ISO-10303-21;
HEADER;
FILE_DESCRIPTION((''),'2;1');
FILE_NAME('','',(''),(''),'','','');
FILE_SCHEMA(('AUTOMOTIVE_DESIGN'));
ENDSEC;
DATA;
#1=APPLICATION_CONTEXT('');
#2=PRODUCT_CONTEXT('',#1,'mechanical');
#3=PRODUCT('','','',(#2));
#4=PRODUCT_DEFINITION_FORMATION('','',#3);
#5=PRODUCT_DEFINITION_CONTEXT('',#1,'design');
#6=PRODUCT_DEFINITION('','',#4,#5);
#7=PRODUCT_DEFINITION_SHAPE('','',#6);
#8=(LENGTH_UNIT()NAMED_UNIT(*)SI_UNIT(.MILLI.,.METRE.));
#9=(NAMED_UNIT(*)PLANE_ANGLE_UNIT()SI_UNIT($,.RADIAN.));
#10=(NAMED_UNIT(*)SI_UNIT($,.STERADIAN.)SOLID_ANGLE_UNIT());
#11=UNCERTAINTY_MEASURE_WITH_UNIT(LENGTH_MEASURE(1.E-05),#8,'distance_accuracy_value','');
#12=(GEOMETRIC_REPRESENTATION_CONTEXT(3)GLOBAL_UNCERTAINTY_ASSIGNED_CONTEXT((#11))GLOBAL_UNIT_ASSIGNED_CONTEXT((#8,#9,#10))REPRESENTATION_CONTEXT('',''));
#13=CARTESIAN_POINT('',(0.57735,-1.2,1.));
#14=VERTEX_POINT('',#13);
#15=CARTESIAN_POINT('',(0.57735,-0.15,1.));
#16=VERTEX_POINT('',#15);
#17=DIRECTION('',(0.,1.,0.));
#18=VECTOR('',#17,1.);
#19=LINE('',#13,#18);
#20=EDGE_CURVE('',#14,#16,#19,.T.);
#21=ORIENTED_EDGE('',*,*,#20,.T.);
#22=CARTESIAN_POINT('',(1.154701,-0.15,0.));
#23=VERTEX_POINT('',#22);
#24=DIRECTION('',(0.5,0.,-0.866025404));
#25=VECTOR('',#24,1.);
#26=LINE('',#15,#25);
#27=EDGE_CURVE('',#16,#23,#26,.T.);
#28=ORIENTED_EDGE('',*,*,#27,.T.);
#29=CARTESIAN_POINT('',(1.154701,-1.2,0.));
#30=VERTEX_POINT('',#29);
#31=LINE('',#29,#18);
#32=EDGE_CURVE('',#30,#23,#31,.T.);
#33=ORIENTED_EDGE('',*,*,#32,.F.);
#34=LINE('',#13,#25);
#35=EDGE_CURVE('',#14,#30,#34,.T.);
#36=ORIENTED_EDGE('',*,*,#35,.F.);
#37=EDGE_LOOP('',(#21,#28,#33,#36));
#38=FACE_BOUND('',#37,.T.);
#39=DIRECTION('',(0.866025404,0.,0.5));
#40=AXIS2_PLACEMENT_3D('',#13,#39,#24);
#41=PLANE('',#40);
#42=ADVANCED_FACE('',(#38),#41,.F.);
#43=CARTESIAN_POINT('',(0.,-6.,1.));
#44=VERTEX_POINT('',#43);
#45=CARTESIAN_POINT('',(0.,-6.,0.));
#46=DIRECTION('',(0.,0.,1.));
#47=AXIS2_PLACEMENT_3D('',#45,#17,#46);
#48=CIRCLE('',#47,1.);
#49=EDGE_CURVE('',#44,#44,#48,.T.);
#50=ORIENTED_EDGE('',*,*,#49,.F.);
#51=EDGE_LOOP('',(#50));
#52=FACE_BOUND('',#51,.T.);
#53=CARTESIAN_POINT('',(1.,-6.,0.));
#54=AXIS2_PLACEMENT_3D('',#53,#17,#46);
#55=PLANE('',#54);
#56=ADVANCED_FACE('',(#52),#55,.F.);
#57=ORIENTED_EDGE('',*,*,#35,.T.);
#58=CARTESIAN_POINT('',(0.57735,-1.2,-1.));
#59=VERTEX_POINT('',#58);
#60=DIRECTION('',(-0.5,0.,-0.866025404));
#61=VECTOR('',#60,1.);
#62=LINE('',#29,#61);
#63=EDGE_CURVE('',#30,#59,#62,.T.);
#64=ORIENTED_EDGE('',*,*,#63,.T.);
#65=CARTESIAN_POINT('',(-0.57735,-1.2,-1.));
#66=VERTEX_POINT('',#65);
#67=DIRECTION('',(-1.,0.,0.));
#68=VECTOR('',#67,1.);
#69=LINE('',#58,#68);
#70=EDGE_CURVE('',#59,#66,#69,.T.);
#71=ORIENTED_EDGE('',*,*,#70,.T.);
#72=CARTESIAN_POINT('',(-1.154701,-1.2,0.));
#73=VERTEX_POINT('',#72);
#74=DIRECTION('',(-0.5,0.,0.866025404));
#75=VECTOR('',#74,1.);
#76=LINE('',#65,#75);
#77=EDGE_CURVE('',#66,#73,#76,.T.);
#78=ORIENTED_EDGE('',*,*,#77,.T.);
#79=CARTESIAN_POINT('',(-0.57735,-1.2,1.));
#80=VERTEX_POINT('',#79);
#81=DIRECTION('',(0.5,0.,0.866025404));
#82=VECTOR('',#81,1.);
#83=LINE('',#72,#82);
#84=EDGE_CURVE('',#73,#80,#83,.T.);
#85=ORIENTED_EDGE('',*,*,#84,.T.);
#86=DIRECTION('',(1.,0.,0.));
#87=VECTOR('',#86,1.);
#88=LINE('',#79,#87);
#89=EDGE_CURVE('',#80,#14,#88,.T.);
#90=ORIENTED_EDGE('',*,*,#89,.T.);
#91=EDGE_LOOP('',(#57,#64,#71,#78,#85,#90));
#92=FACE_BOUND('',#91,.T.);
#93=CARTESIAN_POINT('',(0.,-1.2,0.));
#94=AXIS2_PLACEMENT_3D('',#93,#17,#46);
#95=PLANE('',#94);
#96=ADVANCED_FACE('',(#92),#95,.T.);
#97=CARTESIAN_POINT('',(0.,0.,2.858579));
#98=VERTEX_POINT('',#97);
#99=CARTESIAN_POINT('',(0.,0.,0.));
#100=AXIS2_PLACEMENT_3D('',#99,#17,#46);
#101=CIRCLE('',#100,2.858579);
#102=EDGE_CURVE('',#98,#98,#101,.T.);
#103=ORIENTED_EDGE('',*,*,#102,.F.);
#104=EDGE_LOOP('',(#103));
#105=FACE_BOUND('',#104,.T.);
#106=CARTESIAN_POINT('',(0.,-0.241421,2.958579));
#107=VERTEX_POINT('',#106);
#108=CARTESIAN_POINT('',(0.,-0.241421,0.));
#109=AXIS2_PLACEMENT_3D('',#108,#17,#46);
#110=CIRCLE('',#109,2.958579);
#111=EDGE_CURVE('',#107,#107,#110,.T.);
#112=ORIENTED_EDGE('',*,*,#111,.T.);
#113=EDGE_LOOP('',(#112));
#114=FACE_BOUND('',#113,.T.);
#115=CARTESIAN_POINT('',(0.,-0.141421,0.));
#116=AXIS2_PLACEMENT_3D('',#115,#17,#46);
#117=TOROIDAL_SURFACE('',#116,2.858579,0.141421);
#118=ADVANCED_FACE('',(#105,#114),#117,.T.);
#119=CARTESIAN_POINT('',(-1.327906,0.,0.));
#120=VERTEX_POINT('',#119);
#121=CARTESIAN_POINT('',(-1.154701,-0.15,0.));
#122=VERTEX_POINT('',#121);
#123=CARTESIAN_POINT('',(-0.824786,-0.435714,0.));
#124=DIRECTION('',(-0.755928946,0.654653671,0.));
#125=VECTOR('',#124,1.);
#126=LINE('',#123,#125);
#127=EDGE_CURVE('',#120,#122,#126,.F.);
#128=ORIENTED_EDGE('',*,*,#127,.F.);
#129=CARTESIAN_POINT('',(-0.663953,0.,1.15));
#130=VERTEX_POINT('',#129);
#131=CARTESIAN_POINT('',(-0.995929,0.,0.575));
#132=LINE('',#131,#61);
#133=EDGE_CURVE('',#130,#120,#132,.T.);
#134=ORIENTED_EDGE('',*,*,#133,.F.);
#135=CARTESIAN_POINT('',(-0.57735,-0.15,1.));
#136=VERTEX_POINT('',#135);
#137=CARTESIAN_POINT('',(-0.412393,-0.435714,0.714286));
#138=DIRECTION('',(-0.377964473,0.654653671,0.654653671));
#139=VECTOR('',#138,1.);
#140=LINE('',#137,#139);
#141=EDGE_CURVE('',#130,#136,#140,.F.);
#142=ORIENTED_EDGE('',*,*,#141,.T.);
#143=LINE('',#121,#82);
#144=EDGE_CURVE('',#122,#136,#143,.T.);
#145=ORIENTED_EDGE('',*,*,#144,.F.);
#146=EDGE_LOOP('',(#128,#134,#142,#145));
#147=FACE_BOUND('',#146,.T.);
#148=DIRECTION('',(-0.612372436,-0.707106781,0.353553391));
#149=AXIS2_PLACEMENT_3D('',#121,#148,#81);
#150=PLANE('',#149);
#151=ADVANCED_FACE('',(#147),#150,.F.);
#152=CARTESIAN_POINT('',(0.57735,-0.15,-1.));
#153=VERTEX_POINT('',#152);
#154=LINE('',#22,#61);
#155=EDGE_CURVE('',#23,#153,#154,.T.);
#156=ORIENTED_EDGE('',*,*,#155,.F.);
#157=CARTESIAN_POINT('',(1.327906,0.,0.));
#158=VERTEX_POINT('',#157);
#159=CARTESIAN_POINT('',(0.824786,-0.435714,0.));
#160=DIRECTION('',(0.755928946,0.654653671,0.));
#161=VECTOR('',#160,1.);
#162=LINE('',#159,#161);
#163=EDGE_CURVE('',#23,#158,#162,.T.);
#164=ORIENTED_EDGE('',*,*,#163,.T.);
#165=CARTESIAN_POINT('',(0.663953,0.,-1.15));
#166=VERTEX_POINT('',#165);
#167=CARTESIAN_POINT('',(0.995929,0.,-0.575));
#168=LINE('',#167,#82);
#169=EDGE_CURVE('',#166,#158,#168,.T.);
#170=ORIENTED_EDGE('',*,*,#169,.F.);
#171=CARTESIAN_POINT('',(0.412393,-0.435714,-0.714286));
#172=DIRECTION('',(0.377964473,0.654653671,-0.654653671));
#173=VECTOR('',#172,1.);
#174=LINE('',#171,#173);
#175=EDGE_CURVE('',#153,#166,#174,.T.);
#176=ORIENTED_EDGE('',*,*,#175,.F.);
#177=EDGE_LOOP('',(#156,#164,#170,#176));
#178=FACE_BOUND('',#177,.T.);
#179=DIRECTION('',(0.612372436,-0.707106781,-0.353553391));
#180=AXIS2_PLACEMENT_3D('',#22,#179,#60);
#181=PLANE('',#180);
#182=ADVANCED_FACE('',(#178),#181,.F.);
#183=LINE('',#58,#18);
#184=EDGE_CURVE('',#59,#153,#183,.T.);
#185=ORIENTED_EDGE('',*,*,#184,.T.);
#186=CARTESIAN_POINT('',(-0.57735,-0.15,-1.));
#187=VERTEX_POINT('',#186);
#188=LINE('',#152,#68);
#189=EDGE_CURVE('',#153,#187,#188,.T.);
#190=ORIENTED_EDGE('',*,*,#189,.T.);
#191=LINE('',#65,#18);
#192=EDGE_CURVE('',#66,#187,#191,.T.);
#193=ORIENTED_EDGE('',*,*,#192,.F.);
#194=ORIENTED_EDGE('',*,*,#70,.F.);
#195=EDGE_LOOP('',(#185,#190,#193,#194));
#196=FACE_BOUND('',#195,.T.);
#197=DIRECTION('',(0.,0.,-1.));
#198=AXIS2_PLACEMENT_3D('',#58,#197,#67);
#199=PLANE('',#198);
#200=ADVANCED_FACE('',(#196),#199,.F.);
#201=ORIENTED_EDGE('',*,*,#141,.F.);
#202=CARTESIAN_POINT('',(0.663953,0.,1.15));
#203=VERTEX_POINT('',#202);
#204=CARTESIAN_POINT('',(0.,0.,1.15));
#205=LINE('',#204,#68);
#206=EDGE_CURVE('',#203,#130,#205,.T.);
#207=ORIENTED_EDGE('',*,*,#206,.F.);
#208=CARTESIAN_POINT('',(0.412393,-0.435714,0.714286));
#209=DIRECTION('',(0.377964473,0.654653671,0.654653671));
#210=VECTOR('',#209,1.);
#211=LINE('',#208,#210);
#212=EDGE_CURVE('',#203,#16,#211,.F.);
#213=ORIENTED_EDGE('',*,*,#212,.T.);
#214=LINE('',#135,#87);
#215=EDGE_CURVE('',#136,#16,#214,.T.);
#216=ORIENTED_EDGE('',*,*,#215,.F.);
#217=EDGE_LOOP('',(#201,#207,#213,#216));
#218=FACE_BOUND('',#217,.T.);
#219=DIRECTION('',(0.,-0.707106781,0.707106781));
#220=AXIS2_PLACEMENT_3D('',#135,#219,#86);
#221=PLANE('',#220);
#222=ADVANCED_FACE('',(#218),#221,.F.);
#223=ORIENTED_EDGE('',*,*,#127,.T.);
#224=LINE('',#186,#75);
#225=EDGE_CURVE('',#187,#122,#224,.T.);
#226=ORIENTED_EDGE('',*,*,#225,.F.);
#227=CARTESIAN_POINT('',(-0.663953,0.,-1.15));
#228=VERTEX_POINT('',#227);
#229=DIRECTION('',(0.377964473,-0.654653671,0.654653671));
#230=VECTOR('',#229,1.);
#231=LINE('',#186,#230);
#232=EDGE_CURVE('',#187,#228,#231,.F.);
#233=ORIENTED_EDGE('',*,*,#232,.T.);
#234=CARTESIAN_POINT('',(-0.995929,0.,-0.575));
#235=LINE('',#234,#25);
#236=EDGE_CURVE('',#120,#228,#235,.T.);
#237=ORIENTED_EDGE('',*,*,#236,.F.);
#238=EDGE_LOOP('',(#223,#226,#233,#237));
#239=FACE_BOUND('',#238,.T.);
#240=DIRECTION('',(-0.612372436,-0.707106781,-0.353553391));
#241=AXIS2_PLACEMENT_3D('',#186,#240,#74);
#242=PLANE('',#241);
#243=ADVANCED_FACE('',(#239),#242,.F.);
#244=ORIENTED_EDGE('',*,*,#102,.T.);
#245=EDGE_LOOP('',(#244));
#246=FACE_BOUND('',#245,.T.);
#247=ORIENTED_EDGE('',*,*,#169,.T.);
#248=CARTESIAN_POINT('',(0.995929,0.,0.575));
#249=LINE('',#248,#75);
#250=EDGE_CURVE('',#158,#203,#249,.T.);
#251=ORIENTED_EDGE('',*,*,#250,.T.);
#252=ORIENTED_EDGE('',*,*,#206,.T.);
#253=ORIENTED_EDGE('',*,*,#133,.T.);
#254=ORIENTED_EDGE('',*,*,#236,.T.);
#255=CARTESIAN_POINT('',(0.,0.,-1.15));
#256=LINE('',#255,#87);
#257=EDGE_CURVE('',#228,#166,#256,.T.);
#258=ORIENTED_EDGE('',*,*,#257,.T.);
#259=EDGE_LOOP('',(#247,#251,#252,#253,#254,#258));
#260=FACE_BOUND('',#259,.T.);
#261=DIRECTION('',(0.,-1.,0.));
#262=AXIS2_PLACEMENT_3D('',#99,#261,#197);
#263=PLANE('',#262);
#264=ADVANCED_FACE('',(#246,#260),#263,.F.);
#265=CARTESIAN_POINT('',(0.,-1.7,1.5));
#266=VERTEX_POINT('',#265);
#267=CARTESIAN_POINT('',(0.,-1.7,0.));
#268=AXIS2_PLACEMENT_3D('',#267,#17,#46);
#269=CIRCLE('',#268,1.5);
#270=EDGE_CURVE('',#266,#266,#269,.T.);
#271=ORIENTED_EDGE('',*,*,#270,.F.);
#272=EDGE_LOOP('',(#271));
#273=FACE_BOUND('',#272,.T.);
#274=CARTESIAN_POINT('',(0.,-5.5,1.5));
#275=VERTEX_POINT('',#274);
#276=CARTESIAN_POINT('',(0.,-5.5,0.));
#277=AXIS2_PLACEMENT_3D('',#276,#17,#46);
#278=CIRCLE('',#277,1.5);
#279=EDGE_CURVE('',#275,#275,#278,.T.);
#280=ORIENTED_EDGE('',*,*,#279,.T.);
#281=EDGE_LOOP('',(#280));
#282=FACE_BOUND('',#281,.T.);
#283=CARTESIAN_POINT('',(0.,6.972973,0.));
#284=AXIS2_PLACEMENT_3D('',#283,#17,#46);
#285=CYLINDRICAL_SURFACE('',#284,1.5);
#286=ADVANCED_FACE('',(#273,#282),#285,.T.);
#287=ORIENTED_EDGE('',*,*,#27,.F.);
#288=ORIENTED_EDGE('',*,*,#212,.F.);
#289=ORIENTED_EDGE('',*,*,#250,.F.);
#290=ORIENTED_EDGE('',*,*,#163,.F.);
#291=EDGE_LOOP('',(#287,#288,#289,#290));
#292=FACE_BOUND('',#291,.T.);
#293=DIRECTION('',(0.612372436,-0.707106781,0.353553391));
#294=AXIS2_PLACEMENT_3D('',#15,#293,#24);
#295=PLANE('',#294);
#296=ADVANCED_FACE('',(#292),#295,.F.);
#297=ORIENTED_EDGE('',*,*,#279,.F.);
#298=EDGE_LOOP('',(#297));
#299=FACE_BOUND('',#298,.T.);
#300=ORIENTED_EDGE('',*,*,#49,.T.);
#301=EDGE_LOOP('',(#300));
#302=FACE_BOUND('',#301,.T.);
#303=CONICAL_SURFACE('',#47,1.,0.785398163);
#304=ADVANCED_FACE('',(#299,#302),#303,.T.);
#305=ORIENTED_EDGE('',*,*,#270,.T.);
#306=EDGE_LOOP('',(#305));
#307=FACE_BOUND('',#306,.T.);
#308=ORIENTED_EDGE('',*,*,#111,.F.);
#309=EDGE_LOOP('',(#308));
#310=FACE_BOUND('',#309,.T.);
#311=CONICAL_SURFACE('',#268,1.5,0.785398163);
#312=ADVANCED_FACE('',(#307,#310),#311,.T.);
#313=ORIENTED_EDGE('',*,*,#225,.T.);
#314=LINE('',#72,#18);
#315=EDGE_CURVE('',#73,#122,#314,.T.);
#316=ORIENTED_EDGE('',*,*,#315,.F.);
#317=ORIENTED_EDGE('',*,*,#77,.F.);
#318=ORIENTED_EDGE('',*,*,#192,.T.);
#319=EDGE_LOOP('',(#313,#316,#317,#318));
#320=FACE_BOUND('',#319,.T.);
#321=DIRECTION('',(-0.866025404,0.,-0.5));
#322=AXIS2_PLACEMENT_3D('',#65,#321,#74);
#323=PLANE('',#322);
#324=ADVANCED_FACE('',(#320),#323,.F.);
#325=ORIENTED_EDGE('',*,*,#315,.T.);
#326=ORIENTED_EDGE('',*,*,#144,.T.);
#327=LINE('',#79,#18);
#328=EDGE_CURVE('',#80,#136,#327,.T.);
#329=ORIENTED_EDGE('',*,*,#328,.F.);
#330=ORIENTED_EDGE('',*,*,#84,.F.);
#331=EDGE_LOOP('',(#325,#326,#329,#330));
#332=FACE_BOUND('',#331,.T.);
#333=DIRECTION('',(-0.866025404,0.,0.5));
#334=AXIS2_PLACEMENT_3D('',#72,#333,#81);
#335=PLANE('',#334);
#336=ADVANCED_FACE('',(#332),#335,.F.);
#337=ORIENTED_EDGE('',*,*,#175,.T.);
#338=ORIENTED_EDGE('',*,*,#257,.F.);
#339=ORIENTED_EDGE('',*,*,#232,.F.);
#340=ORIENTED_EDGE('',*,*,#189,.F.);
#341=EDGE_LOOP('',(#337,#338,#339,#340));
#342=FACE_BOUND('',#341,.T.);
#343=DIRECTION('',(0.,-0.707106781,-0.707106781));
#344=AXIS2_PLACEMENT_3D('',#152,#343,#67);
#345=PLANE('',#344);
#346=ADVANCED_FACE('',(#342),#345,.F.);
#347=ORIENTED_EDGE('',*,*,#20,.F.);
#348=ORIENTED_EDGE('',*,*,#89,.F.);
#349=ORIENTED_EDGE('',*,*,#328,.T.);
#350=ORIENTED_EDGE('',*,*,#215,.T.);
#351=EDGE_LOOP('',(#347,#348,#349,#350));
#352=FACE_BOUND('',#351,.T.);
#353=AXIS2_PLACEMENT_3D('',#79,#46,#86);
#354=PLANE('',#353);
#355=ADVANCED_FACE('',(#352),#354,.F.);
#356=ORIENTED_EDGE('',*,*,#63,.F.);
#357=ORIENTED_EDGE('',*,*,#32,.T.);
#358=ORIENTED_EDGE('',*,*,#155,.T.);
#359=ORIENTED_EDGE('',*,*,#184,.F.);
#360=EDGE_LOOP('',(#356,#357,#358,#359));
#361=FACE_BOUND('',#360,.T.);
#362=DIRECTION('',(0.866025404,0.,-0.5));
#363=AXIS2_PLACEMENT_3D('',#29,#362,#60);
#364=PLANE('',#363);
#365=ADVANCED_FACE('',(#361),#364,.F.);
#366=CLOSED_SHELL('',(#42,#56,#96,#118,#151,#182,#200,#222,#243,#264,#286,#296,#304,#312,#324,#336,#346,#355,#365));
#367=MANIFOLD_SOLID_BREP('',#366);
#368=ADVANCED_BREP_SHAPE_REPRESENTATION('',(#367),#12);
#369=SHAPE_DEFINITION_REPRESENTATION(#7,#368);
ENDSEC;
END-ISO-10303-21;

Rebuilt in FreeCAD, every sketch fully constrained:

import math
import FreeCAD as App
import Part
import Sketcher
Q = App.Units.Quantity


def edges_at(feature, points):
    """Names of the edges that pass closest to the given points."""
    edges = feature.Shape.Edges
    near = lambda p: min(range(len(edges)), key=lambda i: edges[i].distToShape(Part.Vertex(*p))[0])
    return sorted({f"Edge{near(p) + 1}" for p in points})


def add_polygon(sketch, points):
    """Adds a closed chain of lines whose ends are joined by coincident constraints."""
    first, n = sketch.GeometryCount, len(points)
    for a, b in zip(points, points[1:] + points[:1]):
        sketch.addGeometry(Part.LineSegment(App.Vector(*a, 0), App.Vector(*b, 0)), False)
    for i in range(n):
        sketch.addConstraint(Sketcher.Constraint("Coincident", first + i, 2, first + (i + 1) % n, 1))

doc = App.newDocument("Part")
params = doc.addObject("Spreadsheet::Sheet", "Params")
for row, (alias, value) in enumerate([
    ("sketch1_width", "1 mm"),
    ("sketch1_height", "6 mm"),
    ("sketch1_height2", "3.8 mm"),
    ("revolution_angle", "360 deg"),
    ("pocket1_length", "1.2 mm"),
    ("chamfer_size", "0.15 mm"),
], start=1):
    params.set(f"A{row}", alias)
    params.set(f"B{row}", "=" + value)
    params.setAlias(f"B{row}", alias)

body = doc.addObject("PartDesign::Body", "Body")

# Sketch on XY plane
sketch1 = body.newObject("Sketcher::SketchObject", "Sketch")
sketch1.AttachmentSupport = (doc.getObject("XY_Plane"), [""])
sketch1.MapMode = "FlatFace"
sketch1.addGeometry(Part.LineSegment(App.Vector(1, -6, 0), App.Vector(1.5, -5.5, 0)), False)
sketch1.addGeometry(Part.LineSegment(App.Vector(1.5, -5.5, 0), App.Vector(1.5, -1.7, 0)), False)
sketch1.addGeometry(Part.LineSegment(App.Vector(1.5, -1.7, 0), App.Vector(2.96, -0.24, 0)), False)
sketch1.addGeometry(Part.ArcOfCircle(Part.Circle(App.Vector(2.86, -0.14, 0), App.Vector(0, 0, 1), 0.14), math.radians(-45), math.radians(90)), False)
sketch1.addGeometry(Part.LineSegment(App.Vector(2.86, 0, 0), App.Vector(0, 0, 0)), False)
sketch1.addGeometry(Part.LineSegment(App.Vector(0, 0, 0), App.Vector(0, -6, 0)), False)
sketch1.addGeometry(Part.LineSegment(App.Vector(0, -6, 0), App.Vector(1, -6, 0)), False)
sketch1.addConstraint(Sketcher.Constraint("Coincident", 0, 2, 1, 1))
sketch1.addConstraint(Sketcher.Constraint("Coincident", 1, 2, 2, 1))
sketch1.addConstraint(Sketcher.Constraint("Tangent", 2, 2, 3, 1))
sketch1.addConstraint(Sketcher.Constraint("Tangent", 3, 2, 4, 1))
sketch1.addConstraint(Sketcher.Constraint("Coincident", 4, 2, 5, 1))
sketch1.addConstraint(Sketcher.Constraint("Coincident", 5, 2, 6, 1))
sketch1.addConstraint(Sketcher.Constraint("Coincident", 6, 2, 0, 1))
sketch1.addConstraint(Sketcher.Constraint("Vertical", 1))
sketch1.addConstraint(Sketcher.Constraint("Horizontal", 4))
sketch1.addConstraint(Sketcher.Constraint("Vertical", 5))
sketch1.addConstraint(Sketcher.Constraint("Horizontal", 6))
sketch1.addConstraint(Sketcher.Constraint("Coincident", 4, 2, -1, 1))
sketch1.addConstraint(Sketcher.Constraint("Parallel", 0, 2))
sketch1.addConstraint(Sketcher.Constraint("DistanceX", 6, 1, 6, 2, Q("1 mm")))
sketch1.addConstraint(Sketcher.Constraint("DistanceY", 5, 2, 5, 1, Q("6 mm")))
sketch1.addConstraint(Sketcher.Constraint("Angle", 0, Q("45 deg")))
sketch1.addConstraint(Sketcher.Constraint("DistanceY", 1, 1, 1, 2, Q("3.8 mm")))
sketch1.addConstraint(Sketcher.Constraint("DistanceX", -1, 1, 0, 2, Q("1.5 mm")))
sketch1.addConstraint(Sketcher.Constraint("DistanceX", 3, 3, 2, 2, Q("0.1 mm")))
sketch1.setExpression("Constraints[13]", "Params.sketch1_width")
sketch1.setExpression("Constraints[14]", "Params.sketch1_height")
sketch1.setExpression("Constraints[16]", "Params.sketch1_height2")
revolution = body.newObject("PartDesign::Revolution", "Revolution")
revolution.Profile = sketch1
revolution.ReferenceAxis = (sketch1, ["V_Axis"])
revolution.setExpression("Angle", "Params.revolution_angle")

# Sketch on XZ plane
sketch2 = body.newObject("Sketcher::SketchObject", "Sketch001")
sketch2.AttachmentSupport = (doc.getObject("XZ_Plane"), [""])
sketch2.MapMode = "FlatFace"
add_polygon(sketch2, [(-1.2, 0), (-0.6, 1), (0.6, 1), (1.2, 0), (0.6, -1), (-0.6, -1)])  # lines 0-5
sketch2.addConstraint(Sketcher.Constraint("Horizontal", 1))
sketch2.addConstraint(Sketcher.Constraint("Horizontal", 4))
sketch2.addConstraint(Sketcher.Constraint("Symmetric", 0, 2, 3, 2, -1, 1))
sketch2.addConstraint(Sketcher.Constraint("Symmetric", 2, 2, 5, 2, -1, 1))
sketch2.addConstraint(Sketcher.Constraint("PointOnObject", 2, 2, -1))
sketch2.addConstraint(Sketcher.Constraint("Parallel", 2, 5))
sketch2.addConstraint(Sketcher.Constraint("Vertical", 1, 2, 3, 2))
sketch2.addConstraint(Sketcher.Constraint("Angle", 0, Q("60 deg")))
sketch2.addConstraint(Sketcher.Constraint("DistanceY", -1, 1, 0, 2, Q("1 mm")))
sketch2.addConstraint(Sketcher.Constraint("DistanceX", 1, 1, 1, 2, Q("1.154701 mm")))
pocket1 = body.newObject("PartDesign::Pocket", "Pocket")
pocket1.Profile = sketch2
pocket1.setExpression("Length", "Params.pocket1_length")
pocket1.Reversed = True
doc.recompute()

chamfer = body.newObject("PartDesign::Chamfer", "Chamfer")
chamfer.Base = (pocket1, edges_at(pocket1, [
    (-0.866, 0, -0.5),
    (-0.866, 0, 0.5),
    (0, 0, 1),
    (0.866, 0, 0.5),
    (0.866, 0, -0.5),
    (0, 0, -1),
]))
chamfer.setExpression("Size", "Params.chamfer_size")

doc.recompute()
